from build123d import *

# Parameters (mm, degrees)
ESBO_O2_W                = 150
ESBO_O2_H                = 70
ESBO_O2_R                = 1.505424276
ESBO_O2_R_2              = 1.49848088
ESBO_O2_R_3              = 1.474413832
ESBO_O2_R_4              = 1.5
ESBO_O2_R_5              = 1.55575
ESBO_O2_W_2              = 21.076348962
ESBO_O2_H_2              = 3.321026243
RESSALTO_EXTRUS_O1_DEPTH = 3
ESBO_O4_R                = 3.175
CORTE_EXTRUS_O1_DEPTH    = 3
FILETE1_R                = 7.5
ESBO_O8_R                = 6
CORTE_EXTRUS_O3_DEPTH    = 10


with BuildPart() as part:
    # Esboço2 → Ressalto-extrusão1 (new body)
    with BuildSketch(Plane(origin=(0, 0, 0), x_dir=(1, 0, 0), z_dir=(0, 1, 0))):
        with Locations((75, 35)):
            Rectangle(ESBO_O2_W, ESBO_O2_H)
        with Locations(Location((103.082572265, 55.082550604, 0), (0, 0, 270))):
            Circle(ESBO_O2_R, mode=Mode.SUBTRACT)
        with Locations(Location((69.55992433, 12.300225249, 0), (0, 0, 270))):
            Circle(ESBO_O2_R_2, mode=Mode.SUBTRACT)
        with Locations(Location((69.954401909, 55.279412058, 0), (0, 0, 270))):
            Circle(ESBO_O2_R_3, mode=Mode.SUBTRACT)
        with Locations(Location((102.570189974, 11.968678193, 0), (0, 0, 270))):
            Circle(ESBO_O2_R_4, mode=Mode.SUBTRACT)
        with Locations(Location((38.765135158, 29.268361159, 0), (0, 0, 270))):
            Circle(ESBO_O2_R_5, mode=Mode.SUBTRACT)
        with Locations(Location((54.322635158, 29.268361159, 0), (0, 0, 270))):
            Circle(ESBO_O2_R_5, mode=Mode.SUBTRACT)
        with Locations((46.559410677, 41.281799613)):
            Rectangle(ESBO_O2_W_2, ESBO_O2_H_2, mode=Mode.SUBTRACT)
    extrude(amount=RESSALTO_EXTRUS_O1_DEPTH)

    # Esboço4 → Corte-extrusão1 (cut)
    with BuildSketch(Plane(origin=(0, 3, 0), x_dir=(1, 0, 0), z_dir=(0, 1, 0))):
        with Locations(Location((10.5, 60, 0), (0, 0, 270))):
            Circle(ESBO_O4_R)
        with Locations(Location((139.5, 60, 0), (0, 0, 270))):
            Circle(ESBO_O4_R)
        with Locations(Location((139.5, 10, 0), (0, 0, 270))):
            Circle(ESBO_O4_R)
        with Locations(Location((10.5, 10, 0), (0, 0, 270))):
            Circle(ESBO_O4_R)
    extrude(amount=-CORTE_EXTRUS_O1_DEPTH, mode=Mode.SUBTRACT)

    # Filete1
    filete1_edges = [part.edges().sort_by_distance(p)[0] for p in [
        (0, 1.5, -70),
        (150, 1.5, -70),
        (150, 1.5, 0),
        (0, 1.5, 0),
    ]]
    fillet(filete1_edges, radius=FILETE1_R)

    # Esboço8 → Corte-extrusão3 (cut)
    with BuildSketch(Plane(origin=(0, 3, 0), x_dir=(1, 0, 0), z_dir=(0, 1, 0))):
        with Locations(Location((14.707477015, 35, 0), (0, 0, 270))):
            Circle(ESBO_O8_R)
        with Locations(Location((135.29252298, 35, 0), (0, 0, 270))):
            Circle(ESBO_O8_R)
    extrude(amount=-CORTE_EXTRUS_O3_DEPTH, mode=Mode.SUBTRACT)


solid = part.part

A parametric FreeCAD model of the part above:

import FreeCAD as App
import Part
import Sketcher


def edges_at(feature, points):
    """Names of the edges that pass closest to the given points."""
    edges = feature.Shape.Edges
    near = lambda p: min(range(len(edges)), key=lambda i: edges[i].distToShape(Part.Vertex(*p))[0])
    return sorted({f"Edge{near(p) + 1}" for p in points})

doc = App.newDocument("Part")
body = doc.addObject("PartDesign::Body", "Body")

# Sketch on XZ plane
sketch1 = body.newObject("Sketcher::SketchObject", "Sketch")
sketch1.AttachmentSupport = (doc.getObject("XZ_Plane"), [""])
sketch1.MapMode = "FlatFace"
sketch1.addGeometry(Part.LineSegment(App.Vector(0, -70, 0), App.Vector(0, 0, 0)), False)
sketch1.addGeometry(Part.LineSegment(App.Vector(0, 0, 0), App.Vector(150, 0, 0)), False)
sketch1.addGeometry(Part.LineSegment(App.Vector(150, 0, 0), App.Vector(150, -70, 0)), False)
sketch1.addGeometry(Part.LineSegment(App.Vector(150, -70, 0), App.Vector(0, -70, 0)), False)
sketch1.addGeometry(Part.Circle(App.Vector(69.6, -12.3, 0), App.Vector(0, 0, 1), 1.5), False)
sketch1.addGeometry(Part.Circle(App.Vector(38.8, -29.3, 0), App.Vector(0, 0, 1), 1.6), False)
sketch1.addGeometry(Part.Circle(App.Vector(54.3, -29.3, 0), App.Vector(0, 0, 1), 1.6), False)
sketch1.addGeometry(Part.Circle(App.Vector(102.6, -12, 0), App.Vector(0, 0, 1), 1.5), False)
sketch1.addGeometry(Part.LineSegment(App.Vector(57.1, -39.6, 0), App.Vector(36, -39.6, 0)), False)
sketch1.addGeometry(Part.LineSegment(App.Vector(36, -39.6, 0), App.Vector(36, -42.9, 0)), False)
sketch1.addGeometry(Part.LineSegment(App.Vector(36, -42.9, 0), App.Vector(57.1, -42.9, 0)), False)
sketch1.addGeometry(Part.LineSegment(App.Vector(57.1, -42.9, 0), App.Vector(57.1, -39.6, 0)), False)
sketch1.addGeometry(Part.Circle(App.Vector(70, -55.3, 0), App.Vector(0, 0, 1), 1.5), False)
sketch1.addGeometry(Part.Circle(App.Vector(103.1, -55.1, 0), App.Vector(0, 0, 1), 1.5), False)
sketch1.addConstraint(Sketcher.Constraint("Coincident", 0, 2, 1, 1))
sketch1.addConstraint(Sketcher.Constraint("Coincident", 1, 2, 2, 1))
sketch1.addConstraint(Sketcher.Constraint("Coincident", 2, 2, 3, 1))
sketch1.addConstraint(Sketcher.Constraint("Coincident", 3, 2, 0, 1))
sketch1.addConstraint(Sketcher.Constraint("Coincident", 8, 2, 9, 1))
sketch1.addConstraint(Sketcher.Constraint("Coincident", 9, 2, 10, 1))
sketch1.addConstraint(Sketcher.Constraint("Coincident", 10, 2, 11, 1))
sketch1.addConstraint(Sketcher.Constraint("Coincident", 11, 2, 8, 1))
sketch1.addConstraint(Sketcher.Constraint("Vertical", 0))
sketch1.addConstraint(Sketcher.Constraint("Horizontal", 1))
sketch1.addConstraint(Sketcher.Constraint("Vertical", 2))
sketch1.addConstraint(Sketcher.Constraint("Horizontal", 3))
sketch1.addConstraint(Sketcher.Constraint("Horizontal", 8))
sketch1.addConstraint(Sketcher.Constraint("Vertical", 9))
sketch1.addConstraint(Sketcher.Constraint("Horizontal", 10))
sketch1.addConstraint(Sketcher.Constraint("Vertical", 11))
sketch1.addConstraint(Sketcher.Constraint("Coincident", 0, 2, -1, 1))
sketch1.addConstraint(Sketcher.Constraint("Equal", 5, 6))
sketch1.addConstraint(Sketcher.Constraint("Horizontal", 5, 3, 6, 3))
sketch1.addConstraint(Sketcher.Constraint("Diameter", 7, 3.0))
sketch1.addConstraint(Sketcher.Constraint("DistanceX", 1, 1, 1, 2, 150.0))
sketch1.addConstraint(Sketcher.Constraint("DistanceY", 0, 1, 0, 2, 70.0))
sketch1.addConstraint(Sketcher.Constraint("Diameter", 5, 3.1115))
sketch1.addConstraint(Sketcher.Constraint("Diameter", 4, 2.996962))
sketch1.addConstraint(Sketcher.Constraint("Diameter", 13, 3.010849))
sketch1.addConstraint(Sketcher.Constraint("Diameter", 12, 2.948828))
sketch1.addConstraint(Sketcher.Constraint("DistanceX", 8, 2, 8, 1, 21.076349))
sketch1.addConstraint(Sketcher.Constraint("DistanceX", -1, 1, 12, 3, 69.954402))
sketch1.addConstraint(Sketcher.Constraint("DistanceX", 5, 3, 6, 3, 15.5575))
sketch1.addConstraint(Sketcher.Constraint("DistanceX", 8, 2, 5, 3, 2.743899))
sketch1.addConstraint(Sketcher.Constraint("DistanceY", 12, 3, 9, 2, 12.337099))
sketch1.addConstraint(Sketcher.Constraint("DistanceY", 9, 2, 9, 1, 3.321026))
sketch1.addConstraint(Sketcher.Constraint("DistanceY", 5, 3, -1, 1, 29.268361))
sketch1.addConstraint(Sketcher.Constraint("DistanceX", -1, 1, 7, 3, 102.57019))
sketch1.addConstraint(Sketcher.Constraint("DistanceY", 7, 3, -1, 1, 11.968678))
sketch1.addConstraint(Sketcher.Constraint("DistanceY", 13, 3, -1, 1, 55.082551))
sketch1.addConstraint(Sketcher.Constraint("DistanceX", 5, 3, 4, 3, 30.794789))
sketch1.addConstraint(Sketcher.Constraint("DistanceY", 12, 3, 6, 3, 26.011051))
sketch1.addConstraint(Sketcher.Constraint("DistanceX", 12, 3, 13, 3, 33.12817))
sketch1.addConstraint(Sketcher.Constraint("DistanceY", 8, 2, 4, 3, 27.321061))
sketch1.addConstraint(Sketcher.Constraint("DistanceX", -1, 1, 4, 3, 69.559924))
pad1 = body.newObject("PartDesign::Pad", "Pad")
pad1.Profile = sketch1
pad1.Length = 3
pad1.Reversed = True

# Sketch on XZ plane
sketch2 = body.newObject("Sketcher::SketchObject", "Sketch001")
sketch2.AttachmentSupport = (doc.getObject("XZ_Plane"), [""])
sketch2.MapMode = "FlatFace"
sketch2.AttachmentOffset = App.Placement(App.Vector(0, 0, -3), App.Rotation())
sketch2.addGeometry(Part.Circle(App.Vector(10.5, -60, 0), App.Vector(0, 0, 1), 3.2), False)
sketch2.addGeometry(Part.Circle(App.Vector(139.5, -60, 0), App.Vector(0, 0, 1), 3.2), False)
sketch2.addGeometry(Part.Circle(App.Vector(139.5, -10, 0), App.Vector(0, 0, 1), 3.2), False)
sketch2.addGeometry(Part.Circle(App.Vector(10.5, -10, 0), App.Vector(0, 0, 1), 3.2), False)
sketch2.addConstraint(Sketcher.Constraint("Equal", 0, 1))
sketch2.addConstraint(Sketcher.Constraint("Equal", 1, 2))
sketch2.addConstraint(Sketcher.Constraint("Equal", 2, 3))
sketch2.addConstraint(Sketcher.Constraint("Horizontal", 0, 3, 1, 3))
sketch2.addConstraint(Sketcher.Constraint("Horizontal", 2, 3, 3, 3))
sketch2.addConstraint(Sketcher.Constraint("Vertical", 1, 3, 2, 3))
sketch2.addConstraint(Sketcher.Constraint("Vertical", 0, 3, 3, 3))
sketch2.addConstraint(Sketcher.Constraint("Diameter", 0, 6.35))
sketch2.addConstraint(Sketcher.Constraint("DistanceY", 0, 3, -1, 1, 60.0))
sketch2.addConstraint(Sketcher.Constraint("DistanceY", 2, 3, -1, 1, 10.0))
sketch2.addConstraint(Sketcher.Constraint("DistanceX", 0, 3, 1, 3, 129.0))
sketch2.addConstraint(Sketcher.Constraint("DistanceX", -1, 1, 0, 3, 10.5))
pocket1 = body.newObject("PartDesign::Pocket", "Pocket")
pocket1.Profile = sketch2
pocket1.Length = 3
pocket1.Reversed = True
doc.recompute()

fillet = body.newObject("PartDesign::Fillet", "Fillet")
fillet.Base = (pocket1, edges_at(pocket1, [
    (0, 1.5, -70),
    (150, 1.5, -70),
    (150, 1.5, 0),
    (0, 1.5, 0),
]))
fillet.Radius = 7.5

# Sketch on XZ plane
sketch3 = body.newObject("Sketcher::SketchObject", "Sketch002")
sketch3.AttachmentSupport = (doc.getObject("XZ_Plane"), [""])
sketch3.MapMode = "FlatFace"
sketch3.AttachmentOffset = App.Placement(App.Vector(0, 0, -3), App.Rotation())
sketch3.addGeometry(Part.Circle(App.Vector(15, -35, 0), App.Vector(0, 0, 1), 6), False)
sketch3.addGeometry(Part.Circle(App.Vector(135, -35, 0), App.Vector(0, 0, 1), 6), False)
sketch3.addConstraint(Sketcher.Constraint("Equal", 0, 1))
sketch3.addConstraint(Sketcher.Constraint("Horizontal", 0, 3, 1, 3))
sketch3.addConstraint(Sketcher.Constraint("Diameter", 0, 12.0))
sketch3.addConstraint(Sketcher.Constraint("DistanceY", 0, 3, -1, 1, 35.0))
sketch3.addConstraint(Sketcher.Constraint("DistanceX", -1, 1, 0, 3, 14.707477))
sketch3.addConstraint(Sketcher.Constraint("DistanceX", -1, 1, 1, 3, 135.292523))
pocket2 = body.newObject("PartDesign::Pocket", "Pocket001")
pocket2.Profile = sketch3
pocket2.Length = 10
pocket2.Reversed = True

doc.recompute()
